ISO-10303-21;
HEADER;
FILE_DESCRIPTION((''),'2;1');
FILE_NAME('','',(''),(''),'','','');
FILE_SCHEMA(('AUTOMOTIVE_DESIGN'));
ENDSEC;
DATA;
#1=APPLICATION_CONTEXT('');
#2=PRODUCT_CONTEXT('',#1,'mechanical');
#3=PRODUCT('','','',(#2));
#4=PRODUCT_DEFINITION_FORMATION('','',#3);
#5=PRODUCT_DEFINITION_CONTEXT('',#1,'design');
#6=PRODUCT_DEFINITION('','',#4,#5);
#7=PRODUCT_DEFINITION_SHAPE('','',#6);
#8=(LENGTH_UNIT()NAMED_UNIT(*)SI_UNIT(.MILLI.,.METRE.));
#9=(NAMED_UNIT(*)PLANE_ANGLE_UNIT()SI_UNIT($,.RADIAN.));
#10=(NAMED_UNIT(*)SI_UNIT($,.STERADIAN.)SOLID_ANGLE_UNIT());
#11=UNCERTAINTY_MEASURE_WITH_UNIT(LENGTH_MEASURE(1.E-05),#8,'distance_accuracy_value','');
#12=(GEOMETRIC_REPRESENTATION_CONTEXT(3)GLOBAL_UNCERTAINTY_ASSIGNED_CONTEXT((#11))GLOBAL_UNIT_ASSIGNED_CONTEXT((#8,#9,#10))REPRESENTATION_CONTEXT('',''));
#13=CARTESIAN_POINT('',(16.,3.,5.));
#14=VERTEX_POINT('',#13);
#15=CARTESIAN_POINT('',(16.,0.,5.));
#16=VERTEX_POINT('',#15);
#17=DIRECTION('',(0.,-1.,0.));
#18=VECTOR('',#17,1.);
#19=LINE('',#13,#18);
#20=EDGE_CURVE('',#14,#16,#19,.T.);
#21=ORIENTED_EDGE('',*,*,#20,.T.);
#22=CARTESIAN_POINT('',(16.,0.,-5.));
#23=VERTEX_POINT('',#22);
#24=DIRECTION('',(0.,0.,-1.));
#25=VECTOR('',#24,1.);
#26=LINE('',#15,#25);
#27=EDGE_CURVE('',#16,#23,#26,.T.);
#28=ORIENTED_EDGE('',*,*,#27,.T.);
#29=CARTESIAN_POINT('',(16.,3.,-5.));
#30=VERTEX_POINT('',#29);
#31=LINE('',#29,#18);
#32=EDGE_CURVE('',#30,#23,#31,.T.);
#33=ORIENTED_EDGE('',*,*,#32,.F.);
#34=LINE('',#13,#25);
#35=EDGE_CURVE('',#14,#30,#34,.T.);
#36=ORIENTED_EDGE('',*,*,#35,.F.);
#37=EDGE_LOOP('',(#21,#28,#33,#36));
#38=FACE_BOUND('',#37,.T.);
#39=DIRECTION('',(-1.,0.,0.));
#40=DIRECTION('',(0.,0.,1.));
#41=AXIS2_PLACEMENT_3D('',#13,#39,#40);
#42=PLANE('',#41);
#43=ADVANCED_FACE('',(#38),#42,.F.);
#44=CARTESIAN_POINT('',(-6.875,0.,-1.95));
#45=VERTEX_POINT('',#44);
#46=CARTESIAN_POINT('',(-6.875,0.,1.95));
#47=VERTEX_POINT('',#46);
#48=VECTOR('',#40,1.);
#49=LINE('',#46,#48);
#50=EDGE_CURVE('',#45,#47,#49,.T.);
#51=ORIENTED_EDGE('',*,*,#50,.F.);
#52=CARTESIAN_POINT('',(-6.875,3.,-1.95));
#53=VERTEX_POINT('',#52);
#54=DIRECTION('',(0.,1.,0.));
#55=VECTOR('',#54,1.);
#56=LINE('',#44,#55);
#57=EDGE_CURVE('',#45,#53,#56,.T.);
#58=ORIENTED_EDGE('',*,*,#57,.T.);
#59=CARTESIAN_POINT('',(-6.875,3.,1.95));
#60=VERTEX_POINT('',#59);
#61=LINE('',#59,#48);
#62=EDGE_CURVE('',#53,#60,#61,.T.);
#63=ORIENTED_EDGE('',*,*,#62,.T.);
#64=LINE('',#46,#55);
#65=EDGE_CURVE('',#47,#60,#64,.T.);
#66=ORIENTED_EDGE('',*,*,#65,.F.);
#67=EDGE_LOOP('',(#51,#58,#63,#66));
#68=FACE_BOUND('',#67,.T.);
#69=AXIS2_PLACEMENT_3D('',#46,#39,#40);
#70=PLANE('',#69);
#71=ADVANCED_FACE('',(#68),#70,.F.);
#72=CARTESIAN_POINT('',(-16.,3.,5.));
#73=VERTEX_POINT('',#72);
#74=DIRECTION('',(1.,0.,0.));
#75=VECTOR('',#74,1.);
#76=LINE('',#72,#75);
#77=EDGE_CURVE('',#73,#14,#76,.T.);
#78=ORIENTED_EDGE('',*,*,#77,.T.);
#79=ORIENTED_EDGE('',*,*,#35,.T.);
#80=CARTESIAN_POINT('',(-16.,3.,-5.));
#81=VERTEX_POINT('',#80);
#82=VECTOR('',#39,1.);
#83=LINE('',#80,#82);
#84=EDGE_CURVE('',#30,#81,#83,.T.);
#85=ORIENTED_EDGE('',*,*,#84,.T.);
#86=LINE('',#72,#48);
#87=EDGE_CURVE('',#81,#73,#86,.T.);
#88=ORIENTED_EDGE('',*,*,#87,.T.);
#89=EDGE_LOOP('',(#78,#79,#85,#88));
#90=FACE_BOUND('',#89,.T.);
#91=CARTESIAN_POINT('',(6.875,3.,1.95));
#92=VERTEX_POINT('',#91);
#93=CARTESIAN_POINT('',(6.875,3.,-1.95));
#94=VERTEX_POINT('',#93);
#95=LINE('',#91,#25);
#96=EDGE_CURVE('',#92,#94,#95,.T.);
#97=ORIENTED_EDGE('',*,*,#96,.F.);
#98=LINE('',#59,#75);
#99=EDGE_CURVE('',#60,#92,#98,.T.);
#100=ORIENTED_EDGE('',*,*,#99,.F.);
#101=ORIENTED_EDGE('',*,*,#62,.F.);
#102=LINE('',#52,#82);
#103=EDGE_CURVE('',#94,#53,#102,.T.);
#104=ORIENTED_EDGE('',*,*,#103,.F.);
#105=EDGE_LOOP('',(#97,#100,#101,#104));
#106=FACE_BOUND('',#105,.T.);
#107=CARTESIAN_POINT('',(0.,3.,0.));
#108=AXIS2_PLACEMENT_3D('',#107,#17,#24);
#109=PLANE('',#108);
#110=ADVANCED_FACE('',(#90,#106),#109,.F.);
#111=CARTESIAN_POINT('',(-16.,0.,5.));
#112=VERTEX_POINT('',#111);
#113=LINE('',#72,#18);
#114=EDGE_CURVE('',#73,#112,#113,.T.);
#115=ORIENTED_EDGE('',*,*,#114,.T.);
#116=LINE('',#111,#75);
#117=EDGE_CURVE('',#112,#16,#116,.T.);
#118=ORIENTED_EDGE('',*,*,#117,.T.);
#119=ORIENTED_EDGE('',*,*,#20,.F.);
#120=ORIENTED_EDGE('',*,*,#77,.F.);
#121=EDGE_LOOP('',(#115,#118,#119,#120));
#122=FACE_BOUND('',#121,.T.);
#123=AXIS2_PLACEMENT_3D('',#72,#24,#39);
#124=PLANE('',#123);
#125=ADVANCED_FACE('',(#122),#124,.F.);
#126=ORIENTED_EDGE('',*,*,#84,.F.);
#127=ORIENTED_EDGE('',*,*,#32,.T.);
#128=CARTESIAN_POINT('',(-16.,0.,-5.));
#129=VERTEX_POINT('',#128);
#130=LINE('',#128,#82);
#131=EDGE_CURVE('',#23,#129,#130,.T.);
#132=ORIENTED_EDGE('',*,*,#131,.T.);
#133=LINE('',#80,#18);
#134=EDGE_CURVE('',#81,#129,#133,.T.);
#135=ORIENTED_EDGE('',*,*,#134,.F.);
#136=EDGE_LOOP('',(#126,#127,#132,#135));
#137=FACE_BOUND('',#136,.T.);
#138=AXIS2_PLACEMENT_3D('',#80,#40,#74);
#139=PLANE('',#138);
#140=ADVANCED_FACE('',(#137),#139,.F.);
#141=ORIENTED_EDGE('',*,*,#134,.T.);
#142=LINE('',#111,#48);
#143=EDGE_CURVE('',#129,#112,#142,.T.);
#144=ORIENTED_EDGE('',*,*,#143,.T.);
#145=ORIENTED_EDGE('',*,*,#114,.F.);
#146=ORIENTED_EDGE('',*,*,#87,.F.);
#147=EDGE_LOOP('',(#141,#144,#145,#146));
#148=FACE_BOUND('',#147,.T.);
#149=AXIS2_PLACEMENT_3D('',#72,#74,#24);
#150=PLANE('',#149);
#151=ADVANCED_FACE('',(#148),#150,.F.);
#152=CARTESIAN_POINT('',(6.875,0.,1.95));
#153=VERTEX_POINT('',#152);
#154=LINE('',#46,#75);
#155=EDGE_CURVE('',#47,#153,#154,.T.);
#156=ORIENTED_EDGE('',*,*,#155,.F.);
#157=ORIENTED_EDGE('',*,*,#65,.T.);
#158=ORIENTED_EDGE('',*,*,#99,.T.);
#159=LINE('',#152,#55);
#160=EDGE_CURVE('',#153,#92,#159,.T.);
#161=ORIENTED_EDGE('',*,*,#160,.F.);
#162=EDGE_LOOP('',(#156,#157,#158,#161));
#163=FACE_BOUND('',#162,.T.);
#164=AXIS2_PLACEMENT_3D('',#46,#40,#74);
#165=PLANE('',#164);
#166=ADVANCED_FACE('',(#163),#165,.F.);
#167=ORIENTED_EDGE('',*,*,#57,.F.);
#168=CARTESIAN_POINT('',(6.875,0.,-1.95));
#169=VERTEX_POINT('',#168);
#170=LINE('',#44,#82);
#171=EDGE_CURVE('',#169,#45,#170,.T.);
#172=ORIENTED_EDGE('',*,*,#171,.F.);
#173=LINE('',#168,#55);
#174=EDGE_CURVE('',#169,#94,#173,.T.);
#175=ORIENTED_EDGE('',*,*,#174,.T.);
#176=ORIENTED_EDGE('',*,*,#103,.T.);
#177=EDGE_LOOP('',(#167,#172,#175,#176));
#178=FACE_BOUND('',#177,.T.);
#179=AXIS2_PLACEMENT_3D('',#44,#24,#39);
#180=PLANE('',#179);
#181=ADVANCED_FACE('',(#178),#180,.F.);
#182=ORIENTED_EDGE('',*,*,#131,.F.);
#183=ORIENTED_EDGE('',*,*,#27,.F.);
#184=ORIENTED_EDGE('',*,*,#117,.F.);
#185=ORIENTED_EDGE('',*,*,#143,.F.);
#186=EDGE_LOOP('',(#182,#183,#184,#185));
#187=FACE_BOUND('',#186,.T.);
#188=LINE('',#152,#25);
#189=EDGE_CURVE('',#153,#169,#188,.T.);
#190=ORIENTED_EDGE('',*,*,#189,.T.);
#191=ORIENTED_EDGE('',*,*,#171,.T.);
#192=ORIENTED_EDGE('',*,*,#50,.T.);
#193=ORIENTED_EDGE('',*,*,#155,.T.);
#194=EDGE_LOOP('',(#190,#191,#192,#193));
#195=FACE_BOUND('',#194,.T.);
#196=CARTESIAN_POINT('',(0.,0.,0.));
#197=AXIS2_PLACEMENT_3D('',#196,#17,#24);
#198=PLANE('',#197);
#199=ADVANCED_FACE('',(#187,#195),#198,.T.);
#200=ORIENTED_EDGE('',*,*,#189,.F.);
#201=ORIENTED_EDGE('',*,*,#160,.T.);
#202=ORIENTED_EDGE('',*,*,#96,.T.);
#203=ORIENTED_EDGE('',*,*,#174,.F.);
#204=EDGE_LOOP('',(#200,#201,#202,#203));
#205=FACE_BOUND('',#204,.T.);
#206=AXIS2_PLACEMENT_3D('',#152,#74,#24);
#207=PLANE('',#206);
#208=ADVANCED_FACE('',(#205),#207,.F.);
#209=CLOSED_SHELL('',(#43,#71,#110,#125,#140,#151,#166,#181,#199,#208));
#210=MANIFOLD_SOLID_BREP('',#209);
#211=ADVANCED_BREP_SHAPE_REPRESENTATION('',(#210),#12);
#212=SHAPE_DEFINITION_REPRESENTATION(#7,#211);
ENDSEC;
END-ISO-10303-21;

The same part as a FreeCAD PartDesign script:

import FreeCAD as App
import Part
import Sketcher
Q = App.Units.Quantity


def add_polygon(sketch, points):
    """Adds a closed chain of lines whose ends are joined by coincident constraints."""
    first, n = sketch.GeometryCount, len(points)
    for a, b in zip(points, points[1:] + points[:1]):
        sketch.addGeometry(Part.LineSegment(App.Vector(*a, 0), App.Vector(*b, 0)), False)
    for i in range(n):
        sketch.addConstraint(Sketcher.Constraint("Coincident", first + i, 2, first + (i + 1) % n, 1))

doc = App.newDocument("Part")
params = doc.addObject("Spreadsheet::Sheet", "Params")
for row, (alias, value) in enumerate([
    ("sketch1_width", "32 mm"),
    ("sketch1_height", "10 mm"),
    ("pad1_length", "3 mm"),
    ("sketch2_height", "3.9 mm"),
    ("sketch2_width", "13.75 mm"),
], start=1):
    params.set(f"A{row}", alias)
    params.set(f"B{row}", "=" + value)
    params.setAlias(f"B{row}", alias)

body = doc.addObject("PartDesign::Body", "Body")

# Sketch on XZ plane
sketch1 = body.newObject("Sketcher::SketchObject", "Sketch")
sketch1.AttachmentSupport = (doc.getObject("XZ_Plane"), [""])
sketch1.MapMode = "FlatFace"
add_polygon(sketch1, [(-16, -5), (-16, 5), (16, 5), (16, -5)])  # lines 0-3
sketch1.addConstraint([
    Sketcher.Constraint("Vertical", 0),
    Sketcher.Constraint("Horizontal", 1),
    Sketcher.Constraint("Vertical", 2),
    Sketcher.Constraint("Horizontal", 3),
    Sketcher.Constraint("Symmetric", 0, 2, 2, 2, -1, 1),
    Sketcher.Constraint("DistanceX", 1, 1, 1, 2, Q("32 mm")),
    Sketcher.Constraint("DistanceY", 0, 1, 0, 2, Q("10 mm")),
])
sketch1.setExpression("Constraints[9]", "Params.sketch1_width")
sketch1.setExpression("Constraints[10]", "Params.sketch1_height")
pad1 = body.newObject("PartDesign::Pad", "Pad")
pad1.Profile = sketch1
pad1.setExpression("Length", "Params.pad1_length")
pad1.Reversed = True

# Sketch on XZ plane
sketch2 = body.newObject("Sketcher::SketchObject", "Sketch001")
sketch2.AttachmentSupport = (doc.getObject("XZ_Plane"), [""])
sketch2.MapMode = "FlatFace"
sketch2.AttachmentOffset = App.Placement(App.Vector(0, 0, -3), App.Rotation())
add_polygon(sketch2, [(-6.9, -1.9), (-6.9, 1.9), (6.9, 1.9), (6.9, -1.9)])  # lines 0-3
sketch2.addConstraint([
    Sketcher.Constraint("Vertical", 0),
    Sketcher.Constraint("Horizontal", 1),
    Sketcher.Constraint("Vertical", 2),
    Sketcher.Constraint("Horizontal", 3),
    Sketcher.Constraint("Symmetric", 0, 2, 2, 2, -1, 1),
    Sketcher.Constraint("DistanceY", 0, 1, 0, 2, Q("3.9 mm")),
    Sketcher.Constraint("DistanceX", 1, 1, 1, 2, Q("13.75 mm")),
])
sketch2.setExpression("Constraints[9]", "Params.sketch2_height")
sketch2.setExpression("Constraints[10]", "Params.sketch2_width")
pocket1 = body.newObject("PartDesign::Pocket", "Pocket")
pocket1.Profile = sketch2
pocket1.Type = "ThroughAll"
pocket1.Reversed = True

doc.recompute()
